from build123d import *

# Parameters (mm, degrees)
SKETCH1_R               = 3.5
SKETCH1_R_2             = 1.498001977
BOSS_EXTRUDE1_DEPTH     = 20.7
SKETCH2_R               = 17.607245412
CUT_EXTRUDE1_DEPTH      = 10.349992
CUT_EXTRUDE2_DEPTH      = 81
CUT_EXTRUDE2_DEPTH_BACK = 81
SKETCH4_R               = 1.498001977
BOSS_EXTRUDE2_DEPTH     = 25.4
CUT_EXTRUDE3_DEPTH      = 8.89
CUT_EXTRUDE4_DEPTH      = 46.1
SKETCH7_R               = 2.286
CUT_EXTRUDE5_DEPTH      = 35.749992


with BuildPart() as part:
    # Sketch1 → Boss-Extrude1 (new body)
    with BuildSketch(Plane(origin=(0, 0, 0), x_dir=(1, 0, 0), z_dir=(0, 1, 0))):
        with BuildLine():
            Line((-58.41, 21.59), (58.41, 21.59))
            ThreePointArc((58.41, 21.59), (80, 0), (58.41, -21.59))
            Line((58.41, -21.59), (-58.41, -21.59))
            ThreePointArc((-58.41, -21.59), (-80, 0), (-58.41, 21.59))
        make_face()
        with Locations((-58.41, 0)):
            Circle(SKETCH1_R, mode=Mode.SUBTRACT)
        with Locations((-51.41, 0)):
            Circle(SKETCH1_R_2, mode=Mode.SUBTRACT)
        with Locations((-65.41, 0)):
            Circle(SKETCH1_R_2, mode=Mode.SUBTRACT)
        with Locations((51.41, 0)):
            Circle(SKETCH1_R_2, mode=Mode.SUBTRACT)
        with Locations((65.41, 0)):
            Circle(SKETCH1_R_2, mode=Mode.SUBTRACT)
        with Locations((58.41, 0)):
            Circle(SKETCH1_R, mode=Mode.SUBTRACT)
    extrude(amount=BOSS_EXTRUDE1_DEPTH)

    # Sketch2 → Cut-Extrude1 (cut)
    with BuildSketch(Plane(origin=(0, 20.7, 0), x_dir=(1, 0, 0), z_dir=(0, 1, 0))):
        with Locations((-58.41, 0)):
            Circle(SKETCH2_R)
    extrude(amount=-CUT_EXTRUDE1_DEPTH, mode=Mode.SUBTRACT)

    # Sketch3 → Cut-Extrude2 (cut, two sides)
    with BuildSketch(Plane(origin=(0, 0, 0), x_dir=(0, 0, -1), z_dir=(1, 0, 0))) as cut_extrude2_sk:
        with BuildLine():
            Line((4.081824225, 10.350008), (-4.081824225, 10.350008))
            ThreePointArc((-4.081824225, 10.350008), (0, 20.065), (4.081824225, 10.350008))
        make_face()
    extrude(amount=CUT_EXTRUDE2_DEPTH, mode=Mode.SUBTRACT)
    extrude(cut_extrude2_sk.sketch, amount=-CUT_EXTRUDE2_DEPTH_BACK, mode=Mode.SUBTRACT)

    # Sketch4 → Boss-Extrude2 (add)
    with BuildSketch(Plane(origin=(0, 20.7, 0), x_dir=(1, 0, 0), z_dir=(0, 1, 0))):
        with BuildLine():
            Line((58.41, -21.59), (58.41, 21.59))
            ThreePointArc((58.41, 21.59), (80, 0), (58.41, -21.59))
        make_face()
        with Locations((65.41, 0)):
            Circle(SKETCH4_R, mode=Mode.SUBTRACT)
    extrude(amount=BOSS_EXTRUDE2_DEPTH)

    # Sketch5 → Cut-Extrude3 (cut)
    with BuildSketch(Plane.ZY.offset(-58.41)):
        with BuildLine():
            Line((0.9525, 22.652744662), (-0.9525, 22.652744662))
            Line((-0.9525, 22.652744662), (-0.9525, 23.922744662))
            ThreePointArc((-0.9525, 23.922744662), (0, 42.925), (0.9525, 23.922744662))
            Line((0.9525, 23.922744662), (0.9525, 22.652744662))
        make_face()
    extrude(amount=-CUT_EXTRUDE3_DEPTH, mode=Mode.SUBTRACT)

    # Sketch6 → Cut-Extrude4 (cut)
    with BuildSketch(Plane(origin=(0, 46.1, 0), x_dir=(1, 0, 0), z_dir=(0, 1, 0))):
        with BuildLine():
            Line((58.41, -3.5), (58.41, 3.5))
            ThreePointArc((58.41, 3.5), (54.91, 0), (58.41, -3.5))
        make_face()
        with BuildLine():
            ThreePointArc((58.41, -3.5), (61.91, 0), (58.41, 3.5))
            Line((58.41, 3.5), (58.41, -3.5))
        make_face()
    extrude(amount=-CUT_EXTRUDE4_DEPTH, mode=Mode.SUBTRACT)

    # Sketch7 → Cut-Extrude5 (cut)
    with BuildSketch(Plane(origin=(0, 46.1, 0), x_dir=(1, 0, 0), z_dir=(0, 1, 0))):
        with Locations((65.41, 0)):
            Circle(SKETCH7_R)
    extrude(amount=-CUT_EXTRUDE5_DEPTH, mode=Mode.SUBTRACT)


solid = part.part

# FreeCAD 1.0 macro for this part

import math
import FreeCAD as App
import Part
import Sketcher

V = App.Vector
Q = App.Units.Quantity

doc = App.newDocument("Part")
body = doc.addObject("PartDesign::Body", "Body")

# Sketch on XZ plane
sketch1 = body.newObject("Sketcher::SketchObject", "Sketch")
sketch1.AttachmentSupport = (doc.getObject("XZ_Plane"), [""])
sketch1.MapMode = "FlatFace"
sketch1.addGeometry(Part.LineSegment(V(58.41, -21.59, 0), V(-58.41, -21.59, 0)), False)
sketch1.addGeometry(Part.ArcOfCircle(Part.Circle(V(-58.41, 0, 0), V(0, 0, 1), 21.59), math.radians(90), math.radians(270)), False)
sketch1.addGeometry(Part.LineSegment(V(-58.41, 21.59, 0), V(58.41, 21.59, 0)), False)
sketch1.addGeometry(Part.ArcOfCircle(Part.Circle(V(58.41, 0, 0), V(0, 0, 1), 21.59), math.radians(-90), math.radians(90)), False)
sketch1.addGeometry(Part.Circle(V(65.41, 0, 0), V(0, 0, 1), 1.498002), False)
sketch1.addGeometry(Part.Circle(V(58.41, 0, 0), V(0, 0, 1), 3.5), False)
sketch1.addGeometry(Part.Circle(V(51.41, 0, 0), V(0, 0, 1), 1.498002), False)
sketch1.addGeometry(Part.Circle(V(-51.41, 0, 0), V(0, 0, 1), 1.498002), False)
sketch1.addGeometry(Part.Circle(V(-58.41, 0, 0), V(0, 0, 1), 3.5), False)
sketch1.addGeometry(Part.Circle(V(-65.41, 0, 0), V(0, 0, 1), 1.498002), False)
sketch1.addConstraint(Sketcher.Constraint("Tangent", 0, 2, 1, 2))
sketch1.addConstraint(Sketcher.Constraint("Tangent", 1, 1, 2, 1))
sketch1.addConstraint(Sketcher.Constraint("Tangent", 2, 2, 3, 2))
sketch1.addConstraint(Sketcher.Constraint("Tangent", 3, 1, 0, 1))
sketch1.addConstraint(Sketcher.Constraint("Horizontal", 0))
sketch1.addConstraint(Sketcher.Constraint("Horizontal", 2))
sketch1.addConstraint(Sketcher.Constraint("Coincident", 5, 3, 3, 3))
sketch1.addConstraint(Sketcher.Constraint("Coincident", 8, 3, 1, 3))
sketch1.addConstraint(Sketcher.Constraint("Equal", 4, 6))
sketch1.addConstraint(Sketcher.Constraint("Equal", 6, 7))
sketch1.addConstraint(Sketcher.Constraint("Equal", 5, 8))
sketch1.addConstraint(Sketcher.Constraint("Equal", 7, 9))
sketch1.addConstraint(Sketcher.Constraint("Symmetric", 1, 3, 3, 3, -1, 1))
sketch1.addConstraint(Sketcher.Constraint("Symmetric", 6, 3, 7, 3, -1, 1))
sketch1.addConstraint(Sketcher.Constraint("Symmetric", 4, 3, 9, 3, -1, 1))
sketch1.addConstraint(Sketcher.Constraint("PointOnObject", 4, 3, -1))
sketch1.addConstraint(Sketcher.Constraint("PointOnObject", 6, 3, -1))
sketch1.addConstraint(Sketcher.Constraint("Radius", 1, Q("0.85 in")))
sketch1.addConstraint(Sketcher.Constraint("Diameter", 5, Q("7 mm")))
sketch1.addConstraint(Sketcher.Constraint("Diameter", 4, Q("2.996004 mm")))
sketch1.addConstraint(Sketcher.Constraint("DistanceX", 0, 2, 0, 1, Q("116.82 mm")))
sketch1.addConstraint(Sketcher.Constraint("DistanceX", -1, 1, 4, 3, Q("65.41 mm")))
sketch1.addConstraint(Sketcher.Constraint("DistanceX", -1, 1, 6, 3, Q("51.41 mm")))
pad1 = body.newObject("PartDesign::Pad", "Pad")
pad1.Profile = sketch1
pad1.Length = 20.7
pad1.Reversed = True

# Sketch on XZ plane
sketch2 = body.newObject("Sketcher::SketchObject", "Sketch001")
sketch2.AttachmentSupport = (doc.getObject("XZ_Plane"), [""])
sketch2.MapMode = "FlatFace"
sketch2.AttachmentOffset = App.Placement(V(0, 0, -20.7), App.Rotation())
sketch2.addGeometry(Part.Circle(V(-58.41, 0, 0), V(0, 0, 1), 17.607245), False)
sketch2.addConstraint(Sketcher.Constraint("PointOnObject", 0, 3, -1))
sketch2.addConstraint(Sketcher.Constraint("Diameter", 0, Q("35.214491 mm")))
sketch2.addConstraint(Sketcher.Constraint("DistanceX", 0, 3, -1, 1, Q("58.41 mm")))
pocket1 = body.newObject("PartDesign::Pocket", "Pocket")
pocket1.Profile = sketch2
pocket1.Length = 10.349992
pocket1.Reversed = True

# Sketch on YZ plane
sketch3 = body.newObject("Sketcher::SketchObject", "Sketch002")
sketch3.AttachmentSupport = (doc.getObject("YZ_Plane"), [""])
sketch3.MapMode = "FlatFace"
sketch3.addGeometry(Part.LineSegment(V(10.350008, 4.081824, 0), V(10.350008, -4.081824, 0)), False)
sketch3.addGeometry(Part.ArcOfCircle(Part.Circle(V(14.35, 0, 0), V(0, 0, 1), 5.715), math.radians(-134.419873), math.radians(134.419873)), False)
sketch3.addConstraint(Sketcher.Constraint("Coincident", 0, 1, 1, 2))
sketch3.addConstraint(Sketcher.Constraint("Coincident", 1, 1, 0, 2))
sketch3.addConstraint(Sketcher.Constraint("Vertical", 0))
sketch3.addConstraint(Sketcher.Constraint("PointOnObject", 1, 3, -1))
sketch3.addConstraint(Sketcher.Constraint("Radius", 1, Q("0.225 in")))
sketch3.addConstraint(Sketcher.Constraint("DistanceY", 0, 2, 0, 1, Q("8.163648 mm")))
sketch3.addConstraint(Sketcher.Constraint("DistanceX", -1, 1, 1, 3, Q("14.35 mm")))
pocket2 = body.newObject("PartDesign::Pocket", "Pocket001")
pocket2.Profile = sketch3
pocket2.Type = "ThroughAll"
pocket2.Midplane = True

# Sketch on XZ plane
sketch4 = body.newObject("Sketcher::SketchObject", "Sketch003")
sketch4.AttachmentSupport = (doc.getObject("XZ_Plane"), [""])
sketch4.MapMode = "FlatFace"
sketch4.AttachmentOffset = App.Placement(V(0, 0, -20.7), App.Rotation())
sketch4.addGeometry(Part.LineSegment(V(58.41, -21.59, 0), V(58.41, 21.59, 0)), False)
sketch4.addGeometry(Part.ArcOfCircle(Part.Circle(V(58.41, 0, 0), V(0, 0, 1), 21.59), math.radians(-90), math.radians(90)), False)
sketch4.addGeometry(Part.Circle(V(65.41, 0, 0), V(0, 0, 1), 1.498002), False)
sketch4.addConstraint(Sketcher.Constraint("Coincident", 0, 1, 1, 1))
sketch4.addConstraint(Sketcher.Constraint("Coincident", 1, 2, 0, 2))
sketch4.addConstraint(Sketcher.Constraint("Vertical", 0))
sketch4.addConstraint(Sketcher.Constraint("PointOnObject", 1, 3, -1))
sketch4.addConstraint(Sketcher.Constraint("PointOnObject", 2, 3, -1))
sketch4.addConstraint(Sketcher.Constraint("Vertical", 1, 3, 0, 1))
sketch4.addConstraint(Sketcher.Constraint("Radius", 1, Q("0.85 in")))
sketch4.addConstraint(Sketcher.Constraint("Diameter", 2, Q("2.996004 mm")))
sketch4.addConstraint(Sketcher.Constraint("DistanceX", -1, 1, 1, 3, Q("58.41 mm")))
sketch4.addConstraint(Sketcher.Constraint("DistanceX", -1, 1, 2, 3, Q("65.41 mm")))
pad2 = body.newObject("PartDesign::Pad", "Pad001")
pad2.Profile = sketch4
pad2.Length = Q("1 in")
pad2.Reversed = True

# Sketch on YZ plane
sketch5 = body.newObject("Sketcher::SketchObject", "Sketch004")
sketch5.AttachmentSupport = (doc.getObject("YZ_Plane"), [""])
sketch5.MapMode = "FlatFace"
sketch5.AttachmentOffset = App.Placement(V(0, 0, 58.41), App.Rotation())
sketch5.addGeometry(Part.LineSegment(V(22.652745, -0.9525, 0), V(22.652745, 0.9525, 0)), False)
sketch5.addGeometry(Part.LineSegment(V(22.652745, 0.9525, 0), V(23.922745, 0.9525, 0)), False)
sketch5.addGeometry(Part.ArcOfCircle(Part.Circle(V(33.4, 0, 0), V(0, 0, 1), 9.525), math.radians(-174.26083), math.radians(174.26083)), False)
sketch5.addGeometry(Part.LineSegment(V(23.922745, -0.9525, 0), V(22.652745, -0.9525, 0)), False)
sketch5.addConstraint(Sketcher.Constraint("Coincident", 0, 2, 1, 1))
sketch5.addConstraint(Sketcher.Constraint("Coincident", 1, 2, 2, 2))
sketch5.addConstraint(Sketcher.Constraint("Coincident", 2, 1, 3, 1))
sketch5.addConstraint(Sketcher.Constraint("Coincident", 3, 2, 0, 1))
sketch5.addConstraint(Sketcher.Constraint("Vertical", 0))
sketch5.addConstraint(Sketcher.Constraint("Horizontal", 1))
sketch5.addConstraint(Sketcher.Constraint("Horizontal", 3))
sketch5.addConstraint(Sketcher.Constraint("Symmetric", 1, 2, 2, 1, -1))
sketch5.addConstraint(Sketcher.Constraint("Radius", 2, Q("0.375 in")))
sketch5.addConstraint(Sketcher.Constraint("DistanceX", 1, 1, 1, 2, Q("0.05 in")))
sketch5.addConstraint(Sketcher.Constraint("DistanceY", 0, 1, 0, 2, Q("0.075 in")))
sketch5.addConstraint(Sketcher.Constraint("DistanceX", -1, 1, 2, 3, Q("33.4 mm")))
pocket3 = body.newObject("PartDesign::Pocket", "Pocket002")
pocket3.Profile = sketch5
pocket3.Length = Q("0.35 in")
pocket3.Reversed = True

# Sketch on XZ plane
sketch6 = body.newObject("Sketcher::SketchObject", "Sketch005")
sketch6.AttachmentSupport = (doc.getObject("XZ_Plane"), [""])
sketch6.MapMode = "FlatFace"
sketch6.AttachmentOffset = App.Placement(V(0, 0, -46.1), App.Rotation())
sketch6.addGeometry(Part.Circle(V(58.41, 0, 0), V(0, 0, 1), 3.5), False)
sketch6.addConstraint(Sketcher.Constraint("PointOnObject", 0, 3, -1))
sketch6.addConstraint(Sketcher.Constraint("Diameter", 0, Q("7 mm")))
sketch6.addConstraint(Sketcher.Constraint("DistanceX", -1, 1, 0, 3, Q("58.41 mm")))
pocket4 = body.newObject("PartDesign::Pocket", "Pocket003")
pocket4.Profile = sketch6
pocket4.Length = 46.1
pocket4.Reversed = True

# Sketch on XZ plane
sketch7 = body.newObject("Sketcher::SketchObject", "Sketch006")
sketch7.AttachmentSupport = (doc.getObject("XZ_Plane"), [""])
sketch7.MapMode = "FlatFace"
sketch7.AttachmentOffset = App.Placement(V(0, 0, -46.1), App.Rotation())
sketch7.addGeometry(Part.Circle(V(65.41, 0, 0), V(0, 0, 1), 2.286), False)
sketch7.addConstraint(Sketcher.Constraint("PointOnObject", 0, 3, -1))
sketch7.addConstraint(Sketcher.Constraint("Diameter", 0, Q("0.18 in")))
sketch7.addConstraint(Sketcher.Constraint("DistanceX", -1, 1, 0, 3, Q("65.41 mm")))
pocket5 = body.newObject("PartDesign::Pocket", "Pocket004")
pocket5.Profile = sketch7
pocket5.Length = 35.749992
pocket5.Reversed = True

doc.recompute()
